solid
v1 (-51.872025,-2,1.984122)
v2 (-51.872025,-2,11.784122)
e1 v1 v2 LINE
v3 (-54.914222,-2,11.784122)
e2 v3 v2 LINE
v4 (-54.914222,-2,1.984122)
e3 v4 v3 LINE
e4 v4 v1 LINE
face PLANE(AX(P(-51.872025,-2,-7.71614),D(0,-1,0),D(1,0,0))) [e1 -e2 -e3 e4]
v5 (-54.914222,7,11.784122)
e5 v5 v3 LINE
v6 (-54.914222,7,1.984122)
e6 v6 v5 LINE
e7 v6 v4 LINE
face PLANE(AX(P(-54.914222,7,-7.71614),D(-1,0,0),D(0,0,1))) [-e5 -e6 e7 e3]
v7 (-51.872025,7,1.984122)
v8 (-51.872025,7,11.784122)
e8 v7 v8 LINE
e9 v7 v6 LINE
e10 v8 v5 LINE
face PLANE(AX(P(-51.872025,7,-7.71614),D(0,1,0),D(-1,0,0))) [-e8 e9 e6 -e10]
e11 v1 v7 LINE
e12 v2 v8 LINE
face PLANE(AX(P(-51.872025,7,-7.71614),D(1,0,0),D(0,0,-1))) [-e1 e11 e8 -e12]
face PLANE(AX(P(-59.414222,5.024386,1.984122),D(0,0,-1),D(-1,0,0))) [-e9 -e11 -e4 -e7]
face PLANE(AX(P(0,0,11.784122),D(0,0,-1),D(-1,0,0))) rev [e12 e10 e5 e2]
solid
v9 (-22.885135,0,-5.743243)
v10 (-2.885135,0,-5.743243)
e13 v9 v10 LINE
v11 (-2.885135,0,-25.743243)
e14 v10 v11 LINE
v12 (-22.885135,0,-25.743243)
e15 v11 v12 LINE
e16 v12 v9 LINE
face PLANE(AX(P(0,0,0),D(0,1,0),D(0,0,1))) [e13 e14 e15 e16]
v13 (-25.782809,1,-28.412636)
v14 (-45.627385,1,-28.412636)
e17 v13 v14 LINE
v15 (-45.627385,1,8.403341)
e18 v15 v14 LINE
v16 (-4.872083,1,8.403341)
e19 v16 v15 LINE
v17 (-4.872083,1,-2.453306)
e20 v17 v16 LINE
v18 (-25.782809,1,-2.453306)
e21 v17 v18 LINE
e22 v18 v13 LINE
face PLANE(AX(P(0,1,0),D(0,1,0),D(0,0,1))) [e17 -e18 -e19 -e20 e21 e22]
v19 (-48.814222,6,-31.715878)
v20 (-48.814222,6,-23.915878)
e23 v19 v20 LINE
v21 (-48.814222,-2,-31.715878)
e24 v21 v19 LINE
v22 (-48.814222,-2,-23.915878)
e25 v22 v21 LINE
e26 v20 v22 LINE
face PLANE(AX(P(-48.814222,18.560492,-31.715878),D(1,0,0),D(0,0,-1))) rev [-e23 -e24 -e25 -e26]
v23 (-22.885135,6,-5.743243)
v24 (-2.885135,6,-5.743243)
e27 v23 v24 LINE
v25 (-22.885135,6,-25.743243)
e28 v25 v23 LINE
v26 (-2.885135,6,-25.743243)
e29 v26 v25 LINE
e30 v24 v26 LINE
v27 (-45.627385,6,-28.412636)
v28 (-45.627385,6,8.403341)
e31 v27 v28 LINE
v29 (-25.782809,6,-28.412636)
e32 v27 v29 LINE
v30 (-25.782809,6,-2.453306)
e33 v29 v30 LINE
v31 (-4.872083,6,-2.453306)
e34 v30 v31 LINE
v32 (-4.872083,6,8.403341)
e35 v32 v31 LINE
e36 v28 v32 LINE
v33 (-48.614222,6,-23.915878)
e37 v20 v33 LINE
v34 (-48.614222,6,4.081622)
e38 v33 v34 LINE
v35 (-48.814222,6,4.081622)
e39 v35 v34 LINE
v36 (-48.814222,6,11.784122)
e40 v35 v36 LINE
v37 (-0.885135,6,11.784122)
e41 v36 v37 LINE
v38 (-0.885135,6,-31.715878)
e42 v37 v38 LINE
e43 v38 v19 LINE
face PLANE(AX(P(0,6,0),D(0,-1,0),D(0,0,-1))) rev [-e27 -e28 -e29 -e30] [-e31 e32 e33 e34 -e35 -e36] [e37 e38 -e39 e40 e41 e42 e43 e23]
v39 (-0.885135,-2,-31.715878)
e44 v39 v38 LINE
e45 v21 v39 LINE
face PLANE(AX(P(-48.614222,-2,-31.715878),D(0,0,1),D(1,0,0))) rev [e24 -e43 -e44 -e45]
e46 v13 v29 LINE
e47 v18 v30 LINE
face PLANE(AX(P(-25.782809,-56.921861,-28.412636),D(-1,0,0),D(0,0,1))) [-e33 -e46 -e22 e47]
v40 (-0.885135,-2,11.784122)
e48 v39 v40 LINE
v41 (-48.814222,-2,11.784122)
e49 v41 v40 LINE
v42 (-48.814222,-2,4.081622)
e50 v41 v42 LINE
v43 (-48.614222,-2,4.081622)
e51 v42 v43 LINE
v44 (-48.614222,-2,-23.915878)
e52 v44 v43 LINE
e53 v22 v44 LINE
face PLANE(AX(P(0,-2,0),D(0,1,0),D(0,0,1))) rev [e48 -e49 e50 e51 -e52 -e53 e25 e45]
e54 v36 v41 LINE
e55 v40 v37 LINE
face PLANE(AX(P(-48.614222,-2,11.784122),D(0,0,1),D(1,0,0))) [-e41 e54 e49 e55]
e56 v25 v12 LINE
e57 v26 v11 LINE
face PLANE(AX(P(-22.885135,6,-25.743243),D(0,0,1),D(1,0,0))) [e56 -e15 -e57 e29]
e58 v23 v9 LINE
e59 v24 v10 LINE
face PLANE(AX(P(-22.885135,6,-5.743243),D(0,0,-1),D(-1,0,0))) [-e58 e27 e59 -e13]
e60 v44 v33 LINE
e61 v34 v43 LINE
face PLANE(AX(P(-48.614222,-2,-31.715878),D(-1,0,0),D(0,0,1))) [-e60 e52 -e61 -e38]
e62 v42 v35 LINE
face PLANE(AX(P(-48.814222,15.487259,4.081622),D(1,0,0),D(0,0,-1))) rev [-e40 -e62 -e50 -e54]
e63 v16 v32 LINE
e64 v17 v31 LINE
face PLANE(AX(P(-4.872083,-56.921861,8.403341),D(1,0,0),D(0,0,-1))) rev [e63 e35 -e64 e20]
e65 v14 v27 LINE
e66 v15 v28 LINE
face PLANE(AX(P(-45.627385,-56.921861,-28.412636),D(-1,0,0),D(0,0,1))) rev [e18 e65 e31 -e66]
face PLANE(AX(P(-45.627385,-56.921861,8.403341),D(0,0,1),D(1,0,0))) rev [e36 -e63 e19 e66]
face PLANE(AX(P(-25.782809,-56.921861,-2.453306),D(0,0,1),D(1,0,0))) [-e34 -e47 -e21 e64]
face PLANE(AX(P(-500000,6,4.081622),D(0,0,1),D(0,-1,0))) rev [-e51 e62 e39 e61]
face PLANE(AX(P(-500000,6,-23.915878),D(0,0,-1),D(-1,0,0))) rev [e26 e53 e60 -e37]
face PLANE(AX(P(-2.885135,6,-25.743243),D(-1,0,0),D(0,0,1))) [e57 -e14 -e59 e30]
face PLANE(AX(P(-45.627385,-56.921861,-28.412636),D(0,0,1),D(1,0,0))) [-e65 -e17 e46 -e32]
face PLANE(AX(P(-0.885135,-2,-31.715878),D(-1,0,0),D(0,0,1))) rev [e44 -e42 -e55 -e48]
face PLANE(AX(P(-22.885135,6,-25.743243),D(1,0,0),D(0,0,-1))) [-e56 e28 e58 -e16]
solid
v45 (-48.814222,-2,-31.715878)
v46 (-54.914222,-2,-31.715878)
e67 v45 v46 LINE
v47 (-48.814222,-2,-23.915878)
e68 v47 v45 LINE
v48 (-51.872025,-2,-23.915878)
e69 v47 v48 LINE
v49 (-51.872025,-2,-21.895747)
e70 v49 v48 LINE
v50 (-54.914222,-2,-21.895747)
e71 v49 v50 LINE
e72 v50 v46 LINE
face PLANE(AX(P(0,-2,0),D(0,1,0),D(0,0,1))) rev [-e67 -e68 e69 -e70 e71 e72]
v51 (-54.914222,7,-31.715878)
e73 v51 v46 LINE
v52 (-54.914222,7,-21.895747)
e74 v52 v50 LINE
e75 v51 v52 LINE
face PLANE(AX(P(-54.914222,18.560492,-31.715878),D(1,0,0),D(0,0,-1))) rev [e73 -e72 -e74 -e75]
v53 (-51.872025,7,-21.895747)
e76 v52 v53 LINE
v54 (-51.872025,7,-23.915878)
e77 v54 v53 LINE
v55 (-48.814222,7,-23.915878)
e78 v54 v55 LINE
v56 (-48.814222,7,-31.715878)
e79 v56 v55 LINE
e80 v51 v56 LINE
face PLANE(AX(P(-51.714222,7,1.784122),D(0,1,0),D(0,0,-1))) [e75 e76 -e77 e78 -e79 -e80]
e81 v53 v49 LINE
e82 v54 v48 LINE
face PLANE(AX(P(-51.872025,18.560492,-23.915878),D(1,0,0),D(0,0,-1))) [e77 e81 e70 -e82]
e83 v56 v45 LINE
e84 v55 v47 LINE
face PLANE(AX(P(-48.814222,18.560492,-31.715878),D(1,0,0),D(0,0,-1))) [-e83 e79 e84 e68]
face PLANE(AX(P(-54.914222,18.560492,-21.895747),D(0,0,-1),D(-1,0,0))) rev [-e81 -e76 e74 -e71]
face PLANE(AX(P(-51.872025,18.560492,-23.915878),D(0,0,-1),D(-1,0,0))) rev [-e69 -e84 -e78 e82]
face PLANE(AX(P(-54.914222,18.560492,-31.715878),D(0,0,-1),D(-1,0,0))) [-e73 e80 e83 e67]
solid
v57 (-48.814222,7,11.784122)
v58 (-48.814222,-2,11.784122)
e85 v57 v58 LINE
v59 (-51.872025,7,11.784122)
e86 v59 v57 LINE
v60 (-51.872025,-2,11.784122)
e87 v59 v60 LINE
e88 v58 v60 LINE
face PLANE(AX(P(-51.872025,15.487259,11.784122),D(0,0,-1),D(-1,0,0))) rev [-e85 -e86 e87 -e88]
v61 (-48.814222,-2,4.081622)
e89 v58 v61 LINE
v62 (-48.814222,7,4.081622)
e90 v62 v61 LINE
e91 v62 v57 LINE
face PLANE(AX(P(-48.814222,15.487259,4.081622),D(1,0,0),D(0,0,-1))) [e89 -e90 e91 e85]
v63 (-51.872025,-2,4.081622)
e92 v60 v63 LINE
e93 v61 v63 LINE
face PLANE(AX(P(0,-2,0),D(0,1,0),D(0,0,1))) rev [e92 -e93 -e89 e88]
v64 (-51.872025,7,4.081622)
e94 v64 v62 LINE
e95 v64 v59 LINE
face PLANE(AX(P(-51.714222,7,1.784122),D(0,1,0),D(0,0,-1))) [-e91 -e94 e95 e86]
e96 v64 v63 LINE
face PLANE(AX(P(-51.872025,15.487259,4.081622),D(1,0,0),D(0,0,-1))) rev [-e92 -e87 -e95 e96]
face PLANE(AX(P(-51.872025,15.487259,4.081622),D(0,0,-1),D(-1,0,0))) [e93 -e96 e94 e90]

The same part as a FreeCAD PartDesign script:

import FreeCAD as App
import Part
import Sketcher

V = App.Vector
Q = App.Units.Quantity


def add_polygon(sketch, points):
    """Adds a closed chain of lines whose ends are joined by coincident constraints."""
    first, n = sketch.GeometryCount, len(points)
    for a, b in zip(points, points[1:] + points[:1]):
        sketch.addGeometry(Part.LineSegment(App.Vector(*a, 0), App.Vector(*b, 0)), False)
    for i in range(n):
        sketch.addConstraint(Sketcher.Constraint("Coincident", first + i, 2, first + (i + 1) % n, 1))

doc = App.newDocument("Part")
body = doc.addObject("PartDesign::Body", "Body")

# Sketch on XZ plane
sketch1 = body.newObject("Sketcher::SketchObject", "Sketch")
sketch1.AttachmentSupport = (doc.getObject("XZ_Plane"), [""])
sketch1.MapMode = "FlatFace"
add_polygon(sketch1, [(-48.614222, -31.715878), (-48.614222, 11.784122), (-0.885135, 11.784122), (-0.885135, -31.715878)])  # lines 0-3
sketch1.addConstraint(Sketcher.Constraint("Vertical", 0))
sketch1.addConstraint(Sketcher.Constraint("Horizontal", 1))
sketch1.addConstraint(Sketcher.Constraint("Vertical", 2))
sketch1.addConstraint(Sketcher.Constraint("Horizontal", 3))
sketch1.addConstraint(Sketcher.Constraint("DistanceY", 0, 1, 0, 2, Q("43.5 mm")))
sketch1.addConstraint(Sketcher.Constraint("DistanceX", 1, 1, 1, 2, Q("47.729087 mm")))
sketch1.addConstraint(Sketcher.Constraint("DistanceX", 0, 2, -1, 1, Q("48.614222 mm")))
sketch1.addConstraint(Sketcher.Constraint("DistanceY", -1, 1, 0, 2, Q("11.784122 mm")))
pad1 = body.newObject("PartDesign::Pad", "Pad")
pad1.Profile = sketch1
pad1.Length = 2

# Sketch on XZ plane
sketch2 = body.newObject("Sketcher::SketchObject", "Sketch001")
sketch2.AttachmentSupport = (doc.getObject("XZ_Plane"), [""])
sketch2.MapMode = "FlatFace"
add_polygon(sketch2, [(-48.614222, -31.715878), (-48.614222, 11.784122), (-0.885135, 11.784122), (-0.885135, -31.715878)])  # lines 0-3
add_polygon(sketch2, [(-2.885135, -5.743243), (-22.885135, -5.743243), (-22.885135, -25.743243), (-2.885135, -25.743243)])  # lines 4-7
sketch2.addConstraint(Sketcher.Constraint("Vertical", 0))
sketch2.addConstraint(Sketcher.Constraint("Horizontal", 1))
sketch2.addConstraint(Sketcher.Constraint("Vertical", 2))
sketch2.addConstraint(Sketcher.Constraint("Horizontal", 3))
sketch2.addConstraint(Sketcher.Constraint("Horizontal", 4))
sketch2.addConstraint(Sketcher.Constraint("Vertical", 5))
sketch2.addConstraint(Sketcher.Constraint("Horizontal", 6))
sketch2.addConstraint(Sketcher.Constraint("Vertical", 7))
sketch2.addConstraint(Sketcher.Constraint("Equal", 6, 5))
sketch2.addConstraint(Sketcher.Constraint("DistanceX", 4, 2, 4, 1, Q("20 mm")))
sketch2.addConstraint(Sketcher.Constraint("DistanceY", 0, 1, 0, 2, Q("43.5 mm")))
sketch2.addConstraint(Sketcher.Constraint("DistanceX", 4, 2, 1, 2, Q("22 mm")))
sketch2.addConstraint(Sketcher.Constraint("DistanceX", 1, 1, 1, 2, Q("47.729087 mm")))
sketch2.addConstraint(Sketcher.Constraint("DistanceX", 0, 2, -1, 1, Q("48.614222 mm")))
sketch2.addConstraint(Sketcher.Constraint("DistanceY", -1, 1, 0, 2, Q("11.784122 mm")))
sketch2.addConstraint(Sketcher.Constraint("DistanceY", 4, 2, -1, 1, Q("5.743243 mm")))
pad2 = body.newObject("PartDesign::Pad", "Pad001")
pad2.Profile = sketch2
pad2.Length = 6
pad2.Reversed = True

# Sketch on YZ plane
sketch3 = body.newObject("Sketcher::SketchObject", "Sketch002")
sketch3.AttachmentSupport = (doc.getObject("YZ_Plane"), [""])
sketch3.MapMode = "FlatFace"
sketch3.AttachmentOffset = App.Placement(V(0, 0, -48.614222), App.Rotation())
add_polygon(sketch3, [(6, -31.715878), (-2, -31.715878), (-2, -23.915878), (6, -23.915878)])  # lines 0-3
add_polygon(sketch3, [(6, 4.081622), (-2, 4.081622), (-2, 11.784122), (6, 11.784122)])  # lines 4-7
sketch3.addConstraint(Sketcher.Constraint("Horizontal", 0))
sketch3.addConstraint(Sketcher.Constraint("Vertical", 1))
sketch3.addConstraint(Sketcher.Constraint("Horizontal", 2))
sketch3.addConstraint(Sketcher.Constraint("Vertical", 3))
sketch3.addConstraint(Sketcher.Constraint("Horizontal", 4))
sketch3.addConstraint(Sketcher.Constraint("Vertical", 5))
sketch3.addConstraint(Sketcher.Constraint("Horizontal", 6))
sketch3.addConstraint(Sketcher.Constraint("Vertical", 7))
sketch3.addConstraint(Sketcher.Constraint("Vertical", 1, 2, 4, 2))
sketch3.addConstraint(Sketcher.Constraint("Vertical", 3, 2, 6, 2))
sketch3.addConstraint(Sketcher.Constraint("DistanceX", 0, 2, 0, 1, Q("8 mm")))
sketch3.addConstraint(Sketcher.Constraint("DistanceY", 1, 1, 1, 2, Q("7.8 mm")))
sketch3.addConstraint(Sketcher.Constraint("DistanceX", 0, 2, -1, 1, Q("2 mm")))
sketch3.addConstraint(Sketcher.Constraint("DistanceY", 1, 2, 5, 2, Q("35.7 mm")))
sketch3.addConstraint(Sketcher.Constraint("DistanceY", 5, 1, 5, 2, Q("7.7025 mm")))
sketch3.addConstraint(Sketcher.Constraint("DistanceY", 0, 2, -1, 1, Q("31.715878 mm")))
pad3 = body.newObject("PartDesign::Pad", "Pad002")
pad3.Profile = sketch3
pad3.Length = 0.2
pad3.Reversed = True

# Sketch on XZ plane
sketch4 = body.newObject("Sketcher::SketchObject", "Sketch003")
sketch4.AttachmentSupport = (doc.getObject("XZ_Plane"), [""])
sketch4.MapMode = "FlatFace"
sketch4.AttachmentOffset = App.Placement(V(0, 0, -6), App.Rotation())
add_polygon(sketch4, [(-25.782809, -28.412636), (-45.627385, -28.412636), (-45.627385, 8.403341), (-4.872083, 8.403341), (-4.872083, -2.453306), (-25.782809, -2.453306)])  # lines 0-5
sketch4.addConstraint(Sketcher.Constraint("Horizontal", 0))
sketch4.addConstraint(Sketcher.Constraint("Vertical", 1))
sketch4.addConstraint(Sketcher.Constraint("Horizontal", 2))
sketch4.addConstraint(Sketcher.Constraint("Vertical", 3))
sketch4.addConstraint(Sketcher.Constraint("Horizontal", 4))
sketch4.addConstraint(Sketcher.Constraint("Vertical", 5))
sketch4.addConstraint(Sketcher.Constraint("DistanceY", 5, 2, 5, 1, Q("25.95933 mm")))
sketch4.addConstraint(Sketcher.Constraint("DistanceX", 0, 2, 0, 1, Q("19.844576 mm")))
sketch4.addConstraint(Sketcher.Constraint("DistanceX", 2, 1, 2, 2, Q("40.755302 mm")))
sketch4.addConstraint(Sketcher.Constraint("DistanceY", 1, 1, 1, 2, Q("36.815976 mm")))
sketch4.addConstraint(Sketcher.Constraint("DistanceY", -1, 1, 1, 2, Q("8.403341 mm")))
sketch4.addConstraint(Sketcher.Constraint("DistanceX", 4, 2, -1, 1, Q("25.782809 mm")))
pocket1 = body.newObject("PartDesign::Pocket", "Pocket")
pocket1.Profile = sketch4
pocket1.Length = 5
pocket1.Reversed = True
body2 = doc.addObject("PartDesign::Body", "Body001")

# Sketch on XZ plane
sketch5 = body2.newObject("Sketcher::SketchObject", "Sketch004")
sketch5.AttachmentSupport = (doc.getObject("XZ_Plane001"), [""])
sketch5.MapMode = "FlatFace"
sketch5.AttachmentOffset = App.Placement(V(0, 0, -6), App.Rotation())
add_polygon(sketch5, [(-51.872025, 4.081622), (-51.872025, 11.784122), (-48.814222, 11.784122), (-48.814222, 4.081622)])  # lines 0-3
sketch5.addConstraint(Sketcher.Constraint("Vertical", 0))
sketch5.addConstraint(Sketcher.Constraint("Horizontal", 1))
sketch5.addConstraint(Sketcher.Constraint("Vertical", 2))
sketch5.addConstraint(Sketcher.Constraint("Horizontal", 3))
sketch5.addConstraint(Sketcher.Constraint("DistanceY", 0, 1, 0, 2, Q("7.7025 mm")))
sketch5.addConstraint(Sketcher.Constraint("DistanceX", 1, 1, 1, 2, Q("3.057803 mm")))
sketch5.addConstraint(Sketcher.Constraint("DistanceY", -1, 1, 0, 2, Q("11.784122 mm")))
sketch5.addConstraint(Sketcher.Constraint("DistanceX", 1, 2, -1, 1, Q("48.814222 mm")))
pad4 = body2.newObject("PartDesign::Pad", "Pad003")
pad4.Profile = sketch5
pad4.Type = "TwoLengths"
pad4.Length = 1
pad4.Length2 = 8
pad4.Reversed = True
body3 = doc.addObject("PartDesign::Body", "Body002")

# Sketch on XY plane
sketch6 = body3.newObject("Sketcher::SketchObject", "Sketch005")
sketch6.AttachmentSupport = (doc.getObject("XY_Plane002"), [""])
sketch6.MapMode = "FlatFace"
sketch6.AttachmentOffset = App.Placement(V(0, 0, 11.784122), App.Rotation())
add_polygon(sketch6, [(-54.914222, 7), (-54.914222, -2), (-51.872025, -2), (-51.872025, 7)])  # lines 0-3
sketch6.addConstraint(Sketcher.Constraint("Vertical", 0))
sketch6.addConstraint(Sketcher.Constraint("Horizontal", 1))
sketch6.addConstraint(Sketcher.Constraint("Vertical", 2))
sketch6.addConstraint(Sketcher.Constraint("Horizontal", 3))
sketch6.addConstraint(Sketcher.Constraint("DistanceY", 0, 2, 0, 1, Q("9 mm")))
sketch6.addConstraint(Sketcher.Constraint("DistanceY", 0, 2, -1, 1, Q("2 mm")))
sketch6.addConstraint(Sketcher.Constraint("DistanceX", 1, 1, 1, 2, Q("3.042197 mm")))
sketch6.addConstraint(Sketcher.Constraint("DistanceX", 0, 2, -1, 1, Q("54.914222 mm")))
pad5 = body3.newObject("PartDesign::Pad", "Pad004")
pad5.Profile = sketch6
pad5.Length = 9.8
pad5.Reversed = True
body4 = doc.addObject("PartDesign::Body", "Body003")

# Sketch on XZ plane
sketch7 = body4.newObject("Sketcher::SketchObject", "Sketch006")
sketch7.AttachmentSupport = (doc.getObject("XZ_Plane003"), [""])
sketch7.MapMode = "FlatFace"
sketch7.AttachmentOffset = App.Placement(V(0, 0, 2), App.Rotation())
add_polygon(sketch7, [(-48.814222, -31.715878), (-54.914222, -31.715878), (-54.914222, -21.895747), (-51.872025, -21.895747), (-51.872025, -23.915878), (-48.814222, -23.915878)])  # lines 0-5
sketch7.addConstraint(Sketcher.Constraint("Horizontal", 0))
sketch7.addConstraint(Sketcher.Constraint("Vertical", 1))
sketch7.addConstraint(Sketcher.Constraint("Horizontal", 2))
sketch7.addConstraint(Sketcher.Constraint("Vertical", 3))
sketch7.addConstraint(Sketcher.Constraint("Horizontal", 4))
sketch7.addConstraint(Sketcher.Constraint("Vertical", 5))
sketch7.addConstraint(Sketcher.Constraint("DistanceX", 0, 2, 0, 1, Q("6.1 mm")))
sketch7.addConstraint(Sketcher.Constraint("DistanceY", 5, 2, 5, 1, Q("7.8 mm")))
sketch7.addConstraint(Sketcher.Constraint("DistanceY", 1, 1, 1, 2, Q("9.820132 mm")))
sketch7.addConstraint(Sketcher.Constraint("DistanceX", 2, 1, 2, 2, Q("3.042197 mm")))
sketch7.addConstraint(Sketcher.Constraint("DistanceX", 0, 2, -1, 1, Q("54.914222 mm")))
sketch7.addConstraint(Sketcher.Constraint("DistanceY", 0, 2, -1, 1, Q("31.715878 mm")))
pad6 = body4.newObject("PartDesign::Pad", "Pad005")
pad6.Profile = sketch7
pad6.Length = 9
pad6.Reversed = True

doc.recompute()
